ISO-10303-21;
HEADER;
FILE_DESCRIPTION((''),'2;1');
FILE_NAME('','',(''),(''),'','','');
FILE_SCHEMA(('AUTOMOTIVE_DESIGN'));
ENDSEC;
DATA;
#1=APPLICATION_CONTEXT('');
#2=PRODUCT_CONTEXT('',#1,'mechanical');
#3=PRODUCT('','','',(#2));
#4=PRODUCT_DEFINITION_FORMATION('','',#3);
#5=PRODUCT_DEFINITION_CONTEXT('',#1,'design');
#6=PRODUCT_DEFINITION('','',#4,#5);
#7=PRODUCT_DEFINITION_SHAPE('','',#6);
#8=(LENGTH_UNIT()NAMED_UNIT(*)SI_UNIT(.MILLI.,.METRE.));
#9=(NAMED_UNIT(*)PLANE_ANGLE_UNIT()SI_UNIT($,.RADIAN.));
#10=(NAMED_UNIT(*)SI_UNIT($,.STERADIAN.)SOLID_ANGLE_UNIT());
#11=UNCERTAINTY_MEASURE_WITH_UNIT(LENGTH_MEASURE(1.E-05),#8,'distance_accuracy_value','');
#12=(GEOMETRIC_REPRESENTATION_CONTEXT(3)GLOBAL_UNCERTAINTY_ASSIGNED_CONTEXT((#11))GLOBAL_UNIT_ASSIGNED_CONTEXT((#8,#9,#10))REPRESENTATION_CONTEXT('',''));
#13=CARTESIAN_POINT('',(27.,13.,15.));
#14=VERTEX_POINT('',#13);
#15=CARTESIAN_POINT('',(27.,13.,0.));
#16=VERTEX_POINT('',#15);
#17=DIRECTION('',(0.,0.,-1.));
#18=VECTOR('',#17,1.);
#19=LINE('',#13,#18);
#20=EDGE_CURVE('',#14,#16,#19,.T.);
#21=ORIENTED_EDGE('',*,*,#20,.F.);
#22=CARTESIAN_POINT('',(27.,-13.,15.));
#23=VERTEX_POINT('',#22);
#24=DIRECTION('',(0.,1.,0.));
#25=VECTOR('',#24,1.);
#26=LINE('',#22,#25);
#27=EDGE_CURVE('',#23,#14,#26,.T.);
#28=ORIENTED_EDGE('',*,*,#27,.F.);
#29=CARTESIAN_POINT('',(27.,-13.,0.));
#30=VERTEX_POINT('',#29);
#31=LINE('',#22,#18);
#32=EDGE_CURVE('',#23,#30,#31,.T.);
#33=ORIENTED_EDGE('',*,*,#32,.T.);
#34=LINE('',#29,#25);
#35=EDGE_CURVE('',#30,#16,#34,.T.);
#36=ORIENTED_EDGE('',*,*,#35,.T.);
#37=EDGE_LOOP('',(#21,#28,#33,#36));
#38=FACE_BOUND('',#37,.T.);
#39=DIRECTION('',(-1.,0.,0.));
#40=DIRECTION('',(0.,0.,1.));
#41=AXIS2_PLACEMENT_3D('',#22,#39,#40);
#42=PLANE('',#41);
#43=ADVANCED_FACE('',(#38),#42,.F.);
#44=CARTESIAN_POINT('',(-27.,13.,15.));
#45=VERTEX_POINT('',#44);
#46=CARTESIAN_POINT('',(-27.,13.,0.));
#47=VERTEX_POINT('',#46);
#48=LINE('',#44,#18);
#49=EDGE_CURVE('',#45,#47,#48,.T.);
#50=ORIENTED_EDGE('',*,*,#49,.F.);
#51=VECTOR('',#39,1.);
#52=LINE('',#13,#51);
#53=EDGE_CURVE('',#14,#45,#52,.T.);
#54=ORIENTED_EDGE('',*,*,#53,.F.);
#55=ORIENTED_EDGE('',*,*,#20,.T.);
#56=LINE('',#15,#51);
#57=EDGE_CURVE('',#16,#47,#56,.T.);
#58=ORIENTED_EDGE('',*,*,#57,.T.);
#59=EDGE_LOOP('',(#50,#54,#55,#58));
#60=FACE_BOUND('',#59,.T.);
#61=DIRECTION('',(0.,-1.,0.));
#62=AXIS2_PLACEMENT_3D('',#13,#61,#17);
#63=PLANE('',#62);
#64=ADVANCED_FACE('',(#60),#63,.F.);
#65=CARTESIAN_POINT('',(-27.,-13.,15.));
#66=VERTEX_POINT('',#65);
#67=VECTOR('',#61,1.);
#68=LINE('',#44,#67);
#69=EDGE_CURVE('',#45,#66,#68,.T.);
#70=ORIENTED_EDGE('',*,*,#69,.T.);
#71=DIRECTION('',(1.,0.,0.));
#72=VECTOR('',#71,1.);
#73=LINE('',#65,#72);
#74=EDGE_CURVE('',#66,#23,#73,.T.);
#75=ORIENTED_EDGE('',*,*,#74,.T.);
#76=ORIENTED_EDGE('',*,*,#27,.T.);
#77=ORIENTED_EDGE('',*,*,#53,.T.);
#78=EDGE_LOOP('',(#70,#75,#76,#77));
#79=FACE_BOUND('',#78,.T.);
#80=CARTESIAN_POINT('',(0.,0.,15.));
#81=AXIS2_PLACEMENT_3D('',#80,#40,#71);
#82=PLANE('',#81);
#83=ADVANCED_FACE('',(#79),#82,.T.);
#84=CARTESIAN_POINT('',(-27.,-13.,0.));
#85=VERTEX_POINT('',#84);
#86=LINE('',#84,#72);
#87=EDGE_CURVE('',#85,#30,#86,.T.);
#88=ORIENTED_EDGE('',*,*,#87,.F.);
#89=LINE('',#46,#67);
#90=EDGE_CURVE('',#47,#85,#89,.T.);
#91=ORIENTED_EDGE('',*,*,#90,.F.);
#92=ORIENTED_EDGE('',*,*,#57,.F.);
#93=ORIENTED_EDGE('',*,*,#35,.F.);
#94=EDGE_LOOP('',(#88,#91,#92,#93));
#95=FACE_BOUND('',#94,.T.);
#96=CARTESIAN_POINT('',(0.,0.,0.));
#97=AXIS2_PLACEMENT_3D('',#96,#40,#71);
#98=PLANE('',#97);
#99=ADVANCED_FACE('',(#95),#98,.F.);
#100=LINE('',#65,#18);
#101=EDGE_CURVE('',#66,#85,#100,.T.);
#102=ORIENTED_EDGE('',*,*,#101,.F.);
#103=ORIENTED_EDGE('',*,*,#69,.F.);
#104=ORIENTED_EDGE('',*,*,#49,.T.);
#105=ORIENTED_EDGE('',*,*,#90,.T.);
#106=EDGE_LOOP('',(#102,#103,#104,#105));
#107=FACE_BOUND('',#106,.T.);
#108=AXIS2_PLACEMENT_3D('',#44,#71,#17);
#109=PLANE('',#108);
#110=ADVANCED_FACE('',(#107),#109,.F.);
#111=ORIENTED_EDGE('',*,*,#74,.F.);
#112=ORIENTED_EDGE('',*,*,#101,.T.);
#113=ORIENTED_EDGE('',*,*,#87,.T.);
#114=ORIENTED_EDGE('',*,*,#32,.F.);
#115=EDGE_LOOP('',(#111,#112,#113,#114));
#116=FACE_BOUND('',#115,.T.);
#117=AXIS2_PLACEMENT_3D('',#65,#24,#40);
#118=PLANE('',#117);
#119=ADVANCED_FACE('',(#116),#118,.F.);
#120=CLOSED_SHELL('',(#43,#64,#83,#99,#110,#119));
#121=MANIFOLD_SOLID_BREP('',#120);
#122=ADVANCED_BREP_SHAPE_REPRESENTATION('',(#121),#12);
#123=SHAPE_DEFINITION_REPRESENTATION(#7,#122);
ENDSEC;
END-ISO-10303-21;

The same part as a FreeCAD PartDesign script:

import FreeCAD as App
import Part
import Sketcher

V = App.Vector
Q = App.Units.Quantity

doc = App.newDocument("Part")
params = doc.addObject("Spreadsheet::Sheet", "Params")
for row, (alias, value) in enumerate([
    ("sketch1_width", "54 mm"),
    ("sketch1_height", "26 mm"),
    ("pad1_length", "15 mm"),
], start=1):
    params.set(f"A{row}", alias)
    params.set(f"B{row}", "=" + value)
    params.setAlias(f"B{row}", alias)

body = doc.addObject("PartDesign::Body", "Body")

sketch1 = body.newObject("Sketcher::SketchObject", "Sketch")
sketch1.AttachmentSupport = (doc.getObject("XY_Plane"), [""])
sketch1.MapMode = "FlatFace"
sketch1.addGeometry([
    Part.LineSegment(V(-27, 13, 0), V(-27, -13, 0)),
    Part.LineSegment(V(-27, -13, 0), V(27, -13, 0)),
    Part.LineSegment(V(27, -13, 0), V(27, 13, 0)),
    Part.LineSegment(V(27, 13, 0), V(-27, 13, 0)),
], False)
sketch1.addConstraint([
    Sketcher.Constraint("Coincident", 0, 2, 1, 1),
    Sketcher.Constraint("Coincident", 1, 2, 2, 1),
    Sketcher.Constraint("Coincident", 2, 2, 3, 1),
    Sketcher.Constraint("Coincident", 3, 2, 0, 1),
    Sketcher.Constraint("Vertical", 0),
    Sketcher.Constraint("Horizontal", 1),
    Sketcher.Constraint("Vertical", 2),
    Sketcher.Constraint("Horizontal", 3),
    Sketcher.Constraint("Symmetric", 0, 2, 2, 2, -1, 1),
    Sketcher.Constraint("DistanceX", 1, 1, 1, 2, Q("54 mm")),
    Sketcher.Constraint("DistanceY", 0, 2, 0, 1, Q("26 mm")),
])
sketch1.setExpression("Constraints[9]", "Params.sketch1_width")
sketch1.setExpression("Constraints[10]", "Params.sketch1_height")
pad1 = body.newObject("PartDesign::Pad", "Pad")
pad1.Profile = sketch1
pad1.setExpression("Length", "Params.pad1_length")

doc.recompute()
